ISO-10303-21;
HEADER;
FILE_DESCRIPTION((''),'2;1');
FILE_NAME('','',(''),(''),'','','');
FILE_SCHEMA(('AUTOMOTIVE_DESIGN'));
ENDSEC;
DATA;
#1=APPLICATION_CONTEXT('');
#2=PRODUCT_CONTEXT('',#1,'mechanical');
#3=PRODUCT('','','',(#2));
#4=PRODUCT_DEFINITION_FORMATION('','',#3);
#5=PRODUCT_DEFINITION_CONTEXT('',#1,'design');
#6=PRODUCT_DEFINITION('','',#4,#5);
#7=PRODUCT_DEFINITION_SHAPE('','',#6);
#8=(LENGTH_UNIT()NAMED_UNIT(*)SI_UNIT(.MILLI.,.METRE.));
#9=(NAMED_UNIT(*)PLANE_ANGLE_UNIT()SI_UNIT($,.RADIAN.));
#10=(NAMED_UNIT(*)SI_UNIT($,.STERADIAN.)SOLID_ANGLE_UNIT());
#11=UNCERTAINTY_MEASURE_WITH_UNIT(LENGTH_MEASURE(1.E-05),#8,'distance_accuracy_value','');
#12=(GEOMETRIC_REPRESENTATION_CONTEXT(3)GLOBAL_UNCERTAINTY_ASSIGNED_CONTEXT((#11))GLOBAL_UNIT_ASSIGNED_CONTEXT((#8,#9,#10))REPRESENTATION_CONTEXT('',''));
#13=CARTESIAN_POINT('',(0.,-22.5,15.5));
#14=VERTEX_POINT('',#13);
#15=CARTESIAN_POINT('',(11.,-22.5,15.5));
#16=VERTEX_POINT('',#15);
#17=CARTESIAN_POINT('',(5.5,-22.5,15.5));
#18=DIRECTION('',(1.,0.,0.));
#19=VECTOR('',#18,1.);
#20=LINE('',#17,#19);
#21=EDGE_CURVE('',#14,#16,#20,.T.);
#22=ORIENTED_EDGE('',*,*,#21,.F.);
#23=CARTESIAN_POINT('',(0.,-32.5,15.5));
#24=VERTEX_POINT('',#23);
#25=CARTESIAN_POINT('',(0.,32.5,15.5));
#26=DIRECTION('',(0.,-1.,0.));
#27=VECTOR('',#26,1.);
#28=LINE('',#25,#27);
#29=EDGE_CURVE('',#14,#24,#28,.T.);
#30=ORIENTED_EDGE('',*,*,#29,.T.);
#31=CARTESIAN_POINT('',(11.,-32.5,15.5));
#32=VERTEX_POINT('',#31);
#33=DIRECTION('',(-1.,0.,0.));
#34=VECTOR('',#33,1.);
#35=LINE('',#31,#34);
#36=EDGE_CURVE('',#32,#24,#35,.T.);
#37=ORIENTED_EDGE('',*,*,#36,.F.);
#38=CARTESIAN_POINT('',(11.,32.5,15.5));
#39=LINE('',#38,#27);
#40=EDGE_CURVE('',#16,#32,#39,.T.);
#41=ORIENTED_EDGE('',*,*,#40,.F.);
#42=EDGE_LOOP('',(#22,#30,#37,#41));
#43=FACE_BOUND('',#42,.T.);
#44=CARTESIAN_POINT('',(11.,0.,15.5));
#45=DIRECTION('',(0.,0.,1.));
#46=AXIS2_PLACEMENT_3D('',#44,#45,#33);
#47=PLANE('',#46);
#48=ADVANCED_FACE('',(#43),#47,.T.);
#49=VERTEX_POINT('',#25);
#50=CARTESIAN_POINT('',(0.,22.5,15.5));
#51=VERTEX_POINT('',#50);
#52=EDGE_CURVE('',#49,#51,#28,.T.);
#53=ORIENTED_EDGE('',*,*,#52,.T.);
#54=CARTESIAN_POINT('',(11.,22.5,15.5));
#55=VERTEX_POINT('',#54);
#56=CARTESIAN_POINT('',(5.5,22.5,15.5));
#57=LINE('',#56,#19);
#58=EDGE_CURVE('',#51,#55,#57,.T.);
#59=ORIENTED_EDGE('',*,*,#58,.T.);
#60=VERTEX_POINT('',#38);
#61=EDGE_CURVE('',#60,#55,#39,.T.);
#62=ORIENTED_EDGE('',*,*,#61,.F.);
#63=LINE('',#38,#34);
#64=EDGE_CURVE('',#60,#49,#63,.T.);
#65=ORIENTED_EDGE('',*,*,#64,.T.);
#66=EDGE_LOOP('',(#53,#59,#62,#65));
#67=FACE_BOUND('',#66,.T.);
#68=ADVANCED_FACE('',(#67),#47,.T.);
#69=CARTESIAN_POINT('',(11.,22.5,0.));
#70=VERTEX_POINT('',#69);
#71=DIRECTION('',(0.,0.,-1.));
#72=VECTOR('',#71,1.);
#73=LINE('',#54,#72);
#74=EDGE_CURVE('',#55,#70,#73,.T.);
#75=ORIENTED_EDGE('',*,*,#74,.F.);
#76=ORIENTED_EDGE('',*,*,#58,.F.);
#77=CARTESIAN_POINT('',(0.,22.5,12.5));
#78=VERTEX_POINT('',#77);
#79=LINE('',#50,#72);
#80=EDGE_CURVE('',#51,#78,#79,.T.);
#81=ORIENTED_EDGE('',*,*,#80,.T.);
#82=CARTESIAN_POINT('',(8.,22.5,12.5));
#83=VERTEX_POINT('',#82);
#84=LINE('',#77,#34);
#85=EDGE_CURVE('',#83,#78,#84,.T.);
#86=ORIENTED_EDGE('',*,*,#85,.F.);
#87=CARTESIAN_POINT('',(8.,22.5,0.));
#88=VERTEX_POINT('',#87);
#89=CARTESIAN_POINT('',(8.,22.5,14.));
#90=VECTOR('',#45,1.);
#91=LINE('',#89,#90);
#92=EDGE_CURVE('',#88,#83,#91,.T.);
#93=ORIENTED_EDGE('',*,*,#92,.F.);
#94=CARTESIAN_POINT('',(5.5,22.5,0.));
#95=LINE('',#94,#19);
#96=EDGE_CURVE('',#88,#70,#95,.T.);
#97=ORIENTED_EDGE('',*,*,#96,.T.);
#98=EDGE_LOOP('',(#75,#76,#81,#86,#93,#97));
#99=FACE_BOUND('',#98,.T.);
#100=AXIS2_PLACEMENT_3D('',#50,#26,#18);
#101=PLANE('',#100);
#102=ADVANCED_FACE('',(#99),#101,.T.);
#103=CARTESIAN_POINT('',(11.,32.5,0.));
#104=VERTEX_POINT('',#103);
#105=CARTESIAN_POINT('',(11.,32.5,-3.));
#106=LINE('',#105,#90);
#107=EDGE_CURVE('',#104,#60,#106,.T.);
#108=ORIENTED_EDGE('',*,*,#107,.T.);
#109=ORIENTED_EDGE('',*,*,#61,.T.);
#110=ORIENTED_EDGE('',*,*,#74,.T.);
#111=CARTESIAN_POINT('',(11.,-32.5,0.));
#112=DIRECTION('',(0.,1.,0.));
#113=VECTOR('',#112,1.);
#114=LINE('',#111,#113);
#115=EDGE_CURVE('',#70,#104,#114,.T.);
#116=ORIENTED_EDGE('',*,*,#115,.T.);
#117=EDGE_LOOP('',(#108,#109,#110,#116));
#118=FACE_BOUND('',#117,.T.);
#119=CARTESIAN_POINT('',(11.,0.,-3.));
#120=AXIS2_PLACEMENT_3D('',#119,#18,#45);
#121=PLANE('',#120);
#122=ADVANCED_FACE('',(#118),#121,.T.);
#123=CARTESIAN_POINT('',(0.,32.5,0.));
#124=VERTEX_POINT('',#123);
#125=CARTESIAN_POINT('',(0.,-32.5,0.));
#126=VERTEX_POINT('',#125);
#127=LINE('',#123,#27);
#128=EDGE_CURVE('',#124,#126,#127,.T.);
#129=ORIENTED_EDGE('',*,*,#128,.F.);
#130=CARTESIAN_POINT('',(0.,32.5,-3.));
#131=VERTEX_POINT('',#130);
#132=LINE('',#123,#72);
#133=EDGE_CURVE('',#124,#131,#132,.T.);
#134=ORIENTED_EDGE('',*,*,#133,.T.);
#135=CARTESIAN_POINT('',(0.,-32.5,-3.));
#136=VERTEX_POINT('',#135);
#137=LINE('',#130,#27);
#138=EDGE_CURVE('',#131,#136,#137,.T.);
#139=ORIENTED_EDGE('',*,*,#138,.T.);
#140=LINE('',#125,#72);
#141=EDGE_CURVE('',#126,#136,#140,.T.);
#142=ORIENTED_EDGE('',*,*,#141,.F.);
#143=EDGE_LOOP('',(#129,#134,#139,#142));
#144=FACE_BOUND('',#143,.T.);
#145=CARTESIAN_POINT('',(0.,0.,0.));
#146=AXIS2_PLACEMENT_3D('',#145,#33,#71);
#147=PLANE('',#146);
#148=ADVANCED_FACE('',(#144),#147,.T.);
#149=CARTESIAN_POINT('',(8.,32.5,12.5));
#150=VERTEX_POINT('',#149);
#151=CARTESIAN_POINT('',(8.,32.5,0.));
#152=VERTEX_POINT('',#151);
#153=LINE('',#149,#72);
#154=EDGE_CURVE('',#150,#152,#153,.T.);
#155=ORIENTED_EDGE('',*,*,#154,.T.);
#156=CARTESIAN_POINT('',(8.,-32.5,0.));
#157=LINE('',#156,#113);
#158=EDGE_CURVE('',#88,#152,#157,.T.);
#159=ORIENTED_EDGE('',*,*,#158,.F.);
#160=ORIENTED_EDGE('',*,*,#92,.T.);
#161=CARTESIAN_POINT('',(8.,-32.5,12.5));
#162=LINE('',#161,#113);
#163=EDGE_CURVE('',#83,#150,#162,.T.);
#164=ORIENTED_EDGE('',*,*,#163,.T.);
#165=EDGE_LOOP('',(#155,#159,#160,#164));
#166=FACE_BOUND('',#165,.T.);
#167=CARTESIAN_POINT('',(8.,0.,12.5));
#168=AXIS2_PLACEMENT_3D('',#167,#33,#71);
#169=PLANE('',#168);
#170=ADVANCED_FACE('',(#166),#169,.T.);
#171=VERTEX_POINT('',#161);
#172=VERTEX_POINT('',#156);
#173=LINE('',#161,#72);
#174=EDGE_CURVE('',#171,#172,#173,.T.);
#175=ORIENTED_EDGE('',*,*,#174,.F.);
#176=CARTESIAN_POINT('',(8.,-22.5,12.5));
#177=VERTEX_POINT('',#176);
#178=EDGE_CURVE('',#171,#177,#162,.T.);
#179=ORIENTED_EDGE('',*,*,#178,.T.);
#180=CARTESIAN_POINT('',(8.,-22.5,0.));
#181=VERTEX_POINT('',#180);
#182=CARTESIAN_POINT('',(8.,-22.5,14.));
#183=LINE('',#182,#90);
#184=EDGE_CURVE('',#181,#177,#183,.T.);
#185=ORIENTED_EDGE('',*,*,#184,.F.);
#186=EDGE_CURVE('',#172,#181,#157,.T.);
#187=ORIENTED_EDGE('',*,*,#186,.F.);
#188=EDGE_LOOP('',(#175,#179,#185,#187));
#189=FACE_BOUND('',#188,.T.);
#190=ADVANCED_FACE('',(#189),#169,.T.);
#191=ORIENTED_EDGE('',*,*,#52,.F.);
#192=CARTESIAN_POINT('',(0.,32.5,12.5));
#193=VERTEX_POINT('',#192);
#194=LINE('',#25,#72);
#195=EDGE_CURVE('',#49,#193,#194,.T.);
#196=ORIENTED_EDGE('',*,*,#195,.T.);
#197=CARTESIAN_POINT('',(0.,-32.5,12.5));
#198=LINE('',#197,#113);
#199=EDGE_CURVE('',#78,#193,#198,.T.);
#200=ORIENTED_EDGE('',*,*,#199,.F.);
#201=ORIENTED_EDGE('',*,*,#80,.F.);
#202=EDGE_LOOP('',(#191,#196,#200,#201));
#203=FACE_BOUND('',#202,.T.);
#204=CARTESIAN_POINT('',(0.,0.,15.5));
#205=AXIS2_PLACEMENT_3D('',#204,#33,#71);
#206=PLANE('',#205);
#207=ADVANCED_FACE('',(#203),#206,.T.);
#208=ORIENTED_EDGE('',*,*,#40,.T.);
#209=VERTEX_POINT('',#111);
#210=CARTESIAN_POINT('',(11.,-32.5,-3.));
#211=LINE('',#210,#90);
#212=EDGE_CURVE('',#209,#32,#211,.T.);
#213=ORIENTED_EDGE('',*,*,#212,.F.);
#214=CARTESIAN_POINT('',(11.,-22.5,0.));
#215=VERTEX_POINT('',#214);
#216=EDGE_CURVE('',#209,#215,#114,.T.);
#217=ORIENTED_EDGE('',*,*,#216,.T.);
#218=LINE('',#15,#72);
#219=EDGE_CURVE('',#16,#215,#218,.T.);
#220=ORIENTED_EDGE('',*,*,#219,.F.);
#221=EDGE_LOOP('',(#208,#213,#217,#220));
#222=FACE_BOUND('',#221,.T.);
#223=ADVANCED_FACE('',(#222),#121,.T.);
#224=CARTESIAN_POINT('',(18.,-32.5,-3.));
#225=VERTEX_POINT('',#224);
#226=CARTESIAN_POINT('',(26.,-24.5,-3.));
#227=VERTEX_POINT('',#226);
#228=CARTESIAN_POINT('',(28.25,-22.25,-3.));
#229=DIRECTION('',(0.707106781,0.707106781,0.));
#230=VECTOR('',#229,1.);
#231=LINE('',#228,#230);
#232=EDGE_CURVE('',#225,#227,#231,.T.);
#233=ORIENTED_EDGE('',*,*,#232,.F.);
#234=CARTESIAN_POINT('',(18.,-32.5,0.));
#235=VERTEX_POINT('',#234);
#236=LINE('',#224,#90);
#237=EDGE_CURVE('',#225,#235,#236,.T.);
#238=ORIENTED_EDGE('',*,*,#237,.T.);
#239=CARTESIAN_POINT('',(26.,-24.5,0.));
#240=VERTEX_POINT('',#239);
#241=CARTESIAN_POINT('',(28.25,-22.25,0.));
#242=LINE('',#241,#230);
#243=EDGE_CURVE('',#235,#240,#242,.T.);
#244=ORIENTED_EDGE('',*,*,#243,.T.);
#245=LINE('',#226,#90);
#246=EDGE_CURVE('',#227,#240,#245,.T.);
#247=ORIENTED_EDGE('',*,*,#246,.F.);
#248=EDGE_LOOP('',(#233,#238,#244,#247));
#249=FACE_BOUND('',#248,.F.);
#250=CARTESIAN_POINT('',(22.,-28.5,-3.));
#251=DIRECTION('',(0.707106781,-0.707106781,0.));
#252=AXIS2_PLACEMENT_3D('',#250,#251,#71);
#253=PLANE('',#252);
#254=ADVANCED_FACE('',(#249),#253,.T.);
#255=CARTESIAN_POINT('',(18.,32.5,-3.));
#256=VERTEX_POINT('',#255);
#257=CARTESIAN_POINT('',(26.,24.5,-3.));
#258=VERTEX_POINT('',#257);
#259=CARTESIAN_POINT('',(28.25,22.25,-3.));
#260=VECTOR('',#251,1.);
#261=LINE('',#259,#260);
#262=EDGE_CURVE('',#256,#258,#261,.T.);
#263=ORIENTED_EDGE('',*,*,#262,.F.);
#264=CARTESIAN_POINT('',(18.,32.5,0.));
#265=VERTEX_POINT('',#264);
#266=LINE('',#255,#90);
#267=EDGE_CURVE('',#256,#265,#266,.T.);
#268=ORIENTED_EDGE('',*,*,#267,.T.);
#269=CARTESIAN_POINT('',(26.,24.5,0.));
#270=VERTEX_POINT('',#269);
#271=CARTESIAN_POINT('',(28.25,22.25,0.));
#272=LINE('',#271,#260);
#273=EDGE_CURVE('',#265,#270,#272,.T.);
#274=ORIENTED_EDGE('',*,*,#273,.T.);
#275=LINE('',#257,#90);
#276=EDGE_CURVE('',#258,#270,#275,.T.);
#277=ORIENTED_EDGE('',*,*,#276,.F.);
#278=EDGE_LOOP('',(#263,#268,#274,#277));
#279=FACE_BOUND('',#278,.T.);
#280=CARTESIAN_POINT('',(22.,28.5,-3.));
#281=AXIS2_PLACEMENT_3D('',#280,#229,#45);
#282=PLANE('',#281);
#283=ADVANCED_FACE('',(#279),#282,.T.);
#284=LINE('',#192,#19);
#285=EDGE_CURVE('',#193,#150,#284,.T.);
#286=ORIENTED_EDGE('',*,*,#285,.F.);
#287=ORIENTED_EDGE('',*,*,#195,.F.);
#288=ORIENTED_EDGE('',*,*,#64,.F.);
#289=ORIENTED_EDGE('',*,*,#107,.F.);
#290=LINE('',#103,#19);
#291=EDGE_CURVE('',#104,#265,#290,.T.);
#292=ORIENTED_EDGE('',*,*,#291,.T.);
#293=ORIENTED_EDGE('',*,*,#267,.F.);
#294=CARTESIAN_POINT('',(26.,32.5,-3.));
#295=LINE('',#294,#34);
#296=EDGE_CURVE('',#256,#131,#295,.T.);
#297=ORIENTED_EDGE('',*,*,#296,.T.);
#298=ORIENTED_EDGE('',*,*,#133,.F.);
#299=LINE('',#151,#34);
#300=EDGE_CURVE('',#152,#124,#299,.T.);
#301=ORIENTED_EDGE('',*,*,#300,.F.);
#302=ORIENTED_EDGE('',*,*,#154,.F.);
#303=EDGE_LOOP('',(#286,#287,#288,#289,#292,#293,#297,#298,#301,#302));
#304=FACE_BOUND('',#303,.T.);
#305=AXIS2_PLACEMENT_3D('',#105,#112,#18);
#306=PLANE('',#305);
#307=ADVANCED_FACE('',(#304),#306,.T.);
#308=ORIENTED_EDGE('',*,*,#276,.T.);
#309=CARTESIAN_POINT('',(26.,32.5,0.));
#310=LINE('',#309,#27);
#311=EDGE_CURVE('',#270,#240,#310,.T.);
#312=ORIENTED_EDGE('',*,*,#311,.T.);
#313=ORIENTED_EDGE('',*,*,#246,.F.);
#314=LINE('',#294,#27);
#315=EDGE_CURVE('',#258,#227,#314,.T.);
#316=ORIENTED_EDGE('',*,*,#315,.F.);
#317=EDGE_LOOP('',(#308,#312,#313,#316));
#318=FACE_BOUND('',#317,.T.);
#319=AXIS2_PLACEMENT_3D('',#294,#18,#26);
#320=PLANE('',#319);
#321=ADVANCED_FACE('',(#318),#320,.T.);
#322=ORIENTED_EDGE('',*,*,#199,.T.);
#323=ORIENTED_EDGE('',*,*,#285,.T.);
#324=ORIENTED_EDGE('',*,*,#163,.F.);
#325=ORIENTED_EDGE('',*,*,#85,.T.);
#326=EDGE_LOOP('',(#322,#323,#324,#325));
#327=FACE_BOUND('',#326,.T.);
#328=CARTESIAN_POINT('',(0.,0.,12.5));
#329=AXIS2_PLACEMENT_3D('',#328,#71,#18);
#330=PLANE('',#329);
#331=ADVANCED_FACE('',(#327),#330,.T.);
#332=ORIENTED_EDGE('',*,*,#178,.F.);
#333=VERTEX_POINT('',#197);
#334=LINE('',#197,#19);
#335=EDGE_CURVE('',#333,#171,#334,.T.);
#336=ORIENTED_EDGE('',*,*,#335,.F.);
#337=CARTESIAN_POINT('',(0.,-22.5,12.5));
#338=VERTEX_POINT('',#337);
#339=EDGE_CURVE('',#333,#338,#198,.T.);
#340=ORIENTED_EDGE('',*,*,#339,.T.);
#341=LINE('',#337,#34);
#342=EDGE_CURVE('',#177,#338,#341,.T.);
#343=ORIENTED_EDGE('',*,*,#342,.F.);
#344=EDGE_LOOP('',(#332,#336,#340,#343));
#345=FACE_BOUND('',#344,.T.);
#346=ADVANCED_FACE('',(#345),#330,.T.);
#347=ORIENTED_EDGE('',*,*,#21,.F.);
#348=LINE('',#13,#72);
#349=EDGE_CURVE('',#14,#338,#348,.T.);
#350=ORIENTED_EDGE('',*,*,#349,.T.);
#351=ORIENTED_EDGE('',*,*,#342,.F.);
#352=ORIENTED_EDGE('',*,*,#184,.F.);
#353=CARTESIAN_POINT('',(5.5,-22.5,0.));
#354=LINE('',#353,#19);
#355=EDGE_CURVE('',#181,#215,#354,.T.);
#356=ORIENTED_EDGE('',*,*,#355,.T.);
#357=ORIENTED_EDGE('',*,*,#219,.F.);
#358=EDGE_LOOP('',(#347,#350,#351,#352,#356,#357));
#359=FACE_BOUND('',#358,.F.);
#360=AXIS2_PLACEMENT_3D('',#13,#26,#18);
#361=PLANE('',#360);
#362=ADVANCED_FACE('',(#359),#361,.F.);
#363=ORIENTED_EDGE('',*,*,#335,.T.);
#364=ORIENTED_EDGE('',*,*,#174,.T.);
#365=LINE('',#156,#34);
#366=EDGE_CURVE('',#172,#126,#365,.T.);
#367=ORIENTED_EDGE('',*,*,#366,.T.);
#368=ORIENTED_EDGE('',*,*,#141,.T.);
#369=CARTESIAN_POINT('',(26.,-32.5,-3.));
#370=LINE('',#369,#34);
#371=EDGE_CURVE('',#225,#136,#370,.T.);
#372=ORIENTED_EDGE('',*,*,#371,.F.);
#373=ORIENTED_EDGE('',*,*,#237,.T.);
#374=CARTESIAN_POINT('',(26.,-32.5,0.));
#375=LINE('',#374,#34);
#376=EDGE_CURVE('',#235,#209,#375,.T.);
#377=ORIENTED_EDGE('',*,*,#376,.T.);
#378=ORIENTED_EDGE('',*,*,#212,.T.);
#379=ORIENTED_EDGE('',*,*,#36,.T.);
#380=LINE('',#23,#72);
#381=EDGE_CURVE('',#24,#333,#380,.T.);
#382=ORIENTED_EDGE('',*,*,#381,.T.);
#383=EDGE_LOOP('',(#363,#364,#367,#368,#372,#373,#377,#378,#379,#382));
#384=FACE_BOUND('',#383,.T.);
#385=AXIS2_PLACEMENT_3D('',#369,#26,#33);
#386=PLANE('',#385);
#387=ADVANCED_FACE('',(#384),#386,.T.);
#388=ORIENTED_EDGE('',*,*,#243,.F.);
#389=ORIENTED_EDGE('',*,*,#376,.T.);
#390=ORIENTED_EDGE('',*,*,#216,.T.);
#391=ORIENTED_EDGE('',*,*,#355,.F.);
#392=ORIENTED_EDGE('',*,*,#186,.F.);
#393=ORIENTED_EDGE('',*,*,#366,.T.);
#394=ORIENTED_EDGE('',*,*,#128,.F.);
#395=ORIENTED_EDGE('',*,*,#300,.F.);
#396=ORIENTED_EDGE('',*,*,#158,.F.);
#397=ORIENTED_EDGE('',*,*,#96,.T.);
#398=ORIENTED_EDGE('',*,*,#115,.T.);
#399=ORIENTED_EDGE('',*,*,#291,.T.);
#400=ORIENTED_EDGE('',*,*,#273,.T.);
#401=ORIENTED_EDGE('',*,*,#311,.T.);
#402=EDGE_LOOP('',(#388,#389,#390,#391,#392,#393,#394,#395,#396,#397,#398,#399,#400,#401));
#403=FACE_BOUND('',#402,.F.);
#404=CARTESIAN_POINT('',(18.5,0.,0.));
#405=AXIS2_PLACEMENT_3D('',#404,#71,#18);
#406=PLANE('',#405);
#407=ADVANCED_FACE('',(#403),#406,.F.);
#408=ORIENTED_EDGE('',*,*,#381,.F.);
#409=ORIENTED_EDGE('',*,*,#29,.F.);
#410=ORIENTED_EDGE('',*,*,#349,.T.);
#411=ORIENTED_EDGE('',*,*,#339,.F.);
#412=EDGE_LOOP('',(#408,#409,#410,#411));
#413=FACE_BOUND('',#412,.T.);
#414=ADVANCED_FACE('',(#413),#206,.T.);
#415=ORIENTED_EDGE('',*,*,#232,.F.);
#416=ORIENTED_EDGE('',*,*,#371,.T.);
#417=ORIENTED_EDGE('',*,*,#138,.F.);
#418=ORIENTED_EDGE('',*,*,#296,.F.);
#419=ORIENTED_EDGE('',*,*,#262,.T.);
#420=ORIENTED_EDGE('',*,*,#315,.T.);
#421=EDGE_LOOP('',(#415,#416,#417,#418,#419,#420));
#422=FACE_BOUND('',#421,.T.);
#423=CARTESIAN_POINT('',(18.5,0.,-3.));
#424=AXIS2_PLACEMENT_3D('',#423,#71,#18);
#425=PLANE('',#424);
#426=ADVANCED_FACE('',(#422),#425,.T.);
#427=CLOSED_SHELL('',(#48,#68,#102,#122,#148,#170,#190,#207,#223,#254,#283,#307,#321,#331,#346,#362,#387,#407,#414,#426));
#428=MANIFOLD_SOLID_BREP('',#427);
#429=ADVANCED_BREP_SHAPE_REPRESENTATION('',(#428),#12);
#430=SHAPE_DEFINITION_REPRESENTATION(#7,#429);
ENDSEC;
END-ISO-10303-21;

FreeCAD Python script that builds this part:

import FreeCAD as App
import Part
import Sketcher
from FreeCAD import Vector


def edges_at(feature, points):
    """Names of the edges that pass closest to the given points."""
    edges = feature.Shape.Edges
    near = lambda p: min(range(len(edges)), key=lambda i: edges[i].distToShape(Part.Vertex(*p))[0])
    return sorted({f"Edge{near(p) + 1}" for p in points})

doc = App.newDocument("Part")
body = doc.addObject("PartDesign::Body", "Body")

# Sketch on XZ plane
sketch1 = body.newObject("Sketcher::SketchObject", "Sketch")
sketch1.AttachmentSupport = (doc.getObject("XZ_Plane"), [""])
sketch1.MapMode = "FlatFace"
sketch1.addGeometry([
    Part.LineSegment(Vector(8, 0, 0), Vector(0, 0, 0)),  # 0
    Part.LineSegment(Vector(0, 0, 0), Vector(0, -3, 0)),  # 1
    Part.LineSegment(Vector(0, -3, 0), Vector(11, -3, 0)),  # 2
    Part.LineSegment(Vector(11, -3, 0), Vector(11, 15.5, 0)),  # 3
    Part.LineSegment(Vector(11, 15.5, 0), Vector(0, 15.5, 0)),  # 4
    Part.LineSegment(Vector(0, 15.5, 0), Vector(0, 12.5, 0)),  # 5
    Part.LineSegment(Vector(0, 12.5, 0), Vector(8, 12.5, 0)),  # 6
    Part.LineSegment(Vector(8, 12.5, 0), Vector(8, 0, 0)),  # 7
], False)
sketch1.addConstraint([
    Sketcher.Constraint("Coincident", 0, 2, 1, 1),
    Sketcher.Constraint("Coincident", 1, 2, 2, 1),
    Sketcher.Constraint("Coincident", 2, 2, 3, 1),
    Sketcher.Constraint("Coincident", 3, 2, 4, 1),
    Sketcher.Constraint("Coincident", 4, 2, 5, 1),
    Sketcher.Constraint("Coincident", 5, 2, 6, 1),
    Sketcher.Constraint("Coincident", 6, 2, 7, 1),
    Sketcher.Constraint("Coincident", 7, 2, 0, 1),
    Sketcher.Constraint("Horizontal", 0),
    Sketcher.Constraint("Vertical", 1),
    Sketcher.Constraint("Horizontal", 2),
    Sketcher.Constraint("Vertical", 3),
    Sketcher.Constraint("Horizontal", 4),
    Sketcher.Constraint("Vertical", 5),
    Sketcher.Constraint("Horizontal", 6),
    Sketcher.Constraint("Vertical", 7),
    Sketcher.Constraint("Coincident", 0, 2, -1, 1),
    Sketcher.Constraint("PointOnObject", 4, 2, -2),
    Sketcher.Constraint("Equal", 1, 5),
    Sketcher.Constraint("DistanceX", 0, 2, 0, 1, 8.0),
    Sketcher.Constraint("DistanceX", 2, 1, 2, 2, 11.0),
    Sketcher.Constraint("DistanceY", 1, 2, 1, 1, 3.0),
    Sketcher.Constraint("DistanceY", 3, 1, 3, 2, 18.5),
])
pad1 = body.newObject("PartDesign::Pad", "Pad")
pad1.Profile = sketch1
pad1.Length = 65
pad1.Midplane = True

# Sketch on XY plane
sketch2 = body.newObject("Sketcher::SketchObject", "Sketch001")
sketch2.AttachmentSupport = (doc.getObject("XY_Plane"), [""])
sketch2.MapMode = "FlatFace"
sketch2.AttachmentOffset = App.Placement(Vector(0, 0, 15.5), App.Rotation())
sketch2.addGeometry([
    Part.LineSegment(Vector(0, 22, 0), Vector(0, -22, 0)),
    Part.LineSegment(Vector(0, -22, 0), Vector(11, -22, 0)),
    Part.LineSegment(Vector(11, -22, 0), Vector(11, 22, 0)),
    Part.LineSegment(Vector(11, 22, 0), Vector(0, 22, 0)),
], False)
sketch2.addConstraint([
    Sketcher.Constraint("Coincident", 0, 2, 1, 1),
    Sketcher.Constraint("Coincident", 1, 2, 2, 1),
    Sketcher.Constraint("Coincident", 2, 2, 3, 1),
    Sketcher.Constraint("Coincident", 3, 2, 0, 1),
    Sketcher.Constraint("Vertical", 0),
    Sketcher.Constraint("Horizontal", 1),
    Sketcher.Constraint("Vertical", 2),
    Sketcher.Constraint("Horizontal", 3),
    Sketcher.Constraint("Symmetric", 0, 2, 3, 2, -1, 1),
    Sketcher.Constraint("DistanceX", 1, 1, 1, 2, 11.0),
    Sketcher.Constraint("DistanceY", 0, 2, 0, 1, 45.0),
])
pocket1 = body.newObject("PartDesign::Pocket", "Pocket")
pocket1.Profile = sketch2
pocket1.Length = 15.5

# Sketch on XY plane
sketch3 = body.newObject("Sketcher::SketchObject", "Sketch002")
sketch3.AttachmentSupport = (doc.getObject("XY_Plane"), [""])
sketch3.MapMode = "FlatFace"
sketch3.AttachmentOffset = App.Placement(Vector(0, 0, -3), App.Rotation())
sketch3.addGeometry([
    Part.LineSegment(Vector(11, 32, 0), Vector(26, 32, 0)),
    Part.LineSegment(Vector(26, 32, 0), Vector(26, -32, 0)),
    Part.LineSegment(Vector(26, -32, 0), Vector(11, -32, 0)),
    Part.LineSegment(Vector(11, -32, 0), Vector(11, 32, 0)),
], False)
sketch3.addConstraint([
    Sketcher.Constraint("Coincident", 0, 2, 1, 1),
    Sketcher.Constraint("Coincident", 1, 2, 2, 1),
    Sketcher.Constraint("Coincident", 2, 2, 3, 1),
    Sketcher.Constraint("Coincident", 3, 2, 0, 1),
    Sketcher.Constraint("Horizontal", 0),
    Sketcher.Constraint("Vertical", 1),
    Sketcher.Constraint("Horizontal", 2),
    Sketcher.Constraint("Vertical", 3),
    Sketcher.Constraint("DistanceX", 0, 1, 0, 2, 15.0),
    Sketcher.Constraint("DistanceY", 1, 2, 1, 1, 65.0),
    Sketcher.Constraint("DistanceX", -1, 1, 0, 2, 26.0),
    Sketcher.Constraint("DistanceY", -1, 1, 0, 2, 32.5),
])
pad2 = body.newObject("PartDesign::Pad", "Pad001")
pad2.Profile = sketch3
pad2.Length = 3
doc.recompute()

chamfer = body.newObject("PartDesign::Chamfer", "Chamfer")
chamfer.Base = (pad2, edges_at(pad2, [(26, -32.5, -1.5), (26, 32.5, -1.5)]))
chamfer.Size = 8

doc.recompute()
